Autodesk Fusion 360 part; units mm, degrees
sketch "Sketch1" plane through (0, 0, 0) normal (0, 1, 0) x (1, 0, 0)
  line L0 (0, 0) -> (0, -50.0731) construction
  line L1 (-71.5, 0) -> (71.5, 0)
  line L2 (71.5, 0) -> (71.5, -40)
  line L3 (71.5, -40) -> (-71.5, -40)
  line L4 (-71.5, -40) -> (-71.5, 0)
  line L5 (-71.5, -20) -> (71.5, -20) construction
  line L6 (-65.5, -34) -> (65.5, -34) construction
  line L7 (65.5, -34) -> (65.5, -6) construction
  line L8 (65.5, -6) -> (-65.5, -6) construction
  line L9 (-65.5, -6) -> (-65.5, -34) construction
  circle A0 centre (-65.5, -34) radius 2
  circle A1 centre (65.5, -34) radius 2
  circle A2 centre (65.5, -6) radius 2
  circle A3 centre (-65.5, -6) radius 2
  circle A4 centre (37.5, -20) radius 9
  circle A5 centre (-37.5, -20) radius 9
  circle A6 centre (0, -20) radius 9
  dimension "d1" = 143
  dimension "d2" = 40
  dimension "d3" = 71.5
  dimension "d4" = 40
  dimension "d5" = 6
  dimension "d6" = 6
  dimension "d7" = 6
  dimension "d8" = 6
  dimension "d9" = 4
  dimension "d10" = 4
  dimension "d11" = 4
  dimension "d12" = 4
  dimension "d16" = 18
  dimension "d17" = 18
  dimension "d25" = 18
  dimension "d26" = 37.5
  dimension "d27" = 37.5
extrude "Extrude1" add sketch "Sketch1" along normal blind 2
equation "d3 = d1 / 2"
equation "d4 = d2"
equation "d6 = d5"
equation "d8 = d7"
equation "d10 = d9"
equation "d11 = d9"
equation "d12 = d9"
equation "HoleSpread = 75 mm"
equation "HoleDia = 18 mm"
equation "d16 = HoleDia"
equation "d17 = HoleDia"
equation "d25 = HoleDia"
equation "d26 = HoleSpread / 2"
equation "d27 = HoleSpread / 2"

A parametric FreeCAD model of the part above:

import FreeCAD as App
import Part
import Sketcher
Q = App.Units.Quantity

doc = App.newDocument("Part")
body = doc.addObject("PartDesign::Body", "Body")

# Sketch on XZ plane
sketch1 = doc.addObject("Sketcher::SketchObject", "Sketch")
body.addObject(sketch1)
sketch1.AttachmentSupport = (doc.XZ_Plane, [""])
sketch1.MapMode = "FlatFace"
sketch1.addGeometry(Part.LineSegment(App.Vector(71.5, 0, 0), App.Vector(-71.5, 0, 0)), False)
sketch1.addGeometry(Part.LineSegment(App.Vector(-71.5, 0, 0), App.Vector(-71.5, 40, 0)), False)
sketch1.addGeometry(Part.LineSegment(App.Vector(-71.5, 40, 0), App.Vector(71.5, 40, 0)), False)
sketch1.addGeometry(Part.LineSegment(App.Vector(71.5, 40, 0), App.Vector(71.5, 0, 0)), False)
sketch1.addGeometry(Part.Circle(App.Vector(-65.5, 34, 0), App.Vector(0, 0, 1), 2), False)
sketch1.addGeometry(Part.Circle(App.Vector(65.5, 34, 0), App.Vector(0, 0, 1), 2), False)
sketch1.addGeometry(Part.Circle(App.Vector(-37.5, 20, 0), App.Vector(0, 0, 1), 9), False)
sketch1.addGeometry(Part.Circle(App.Vector(-65.5, 6, 0), App.Vector(0, 0, 1), 2), False)
sketch1.addGeometry(Part.Circle(App.Vector(0, 20, 0), App.Vector(0, 0, 1), 9), False)
sketch1.addGeometry(Part.Circle(App.Vector(37.5, 20, 0), App.Vector(0, 0, 1), 9), False)
sketch1.addGeometry(Part.Circle(App.Vector(65.5, 6, 0), App.Vector(0, 0, 1), 2), False)
sketch1.addConstraint(Sketcher.Constraint("Coincident", 0, 2, 1, 1))
sketch1.addConstraint(Sketcher.Constraint("Coincident", 1, 2, 2, 1))
sketch1.addConstraint(Sketcher.Constraint("Coincident", 2, 2, 3, 1))
sketch1.addConstraint(Sketcher.Constraint("Coincident", 3, 2, 0, 1))
sketch1.addConstraint(Sketcher.Constraint("Horizontal", 0))
sketch1.addConstraint(Sketcher.Constraint("Vertical", 1))
sketch1.addConstraint(Sketcher.Constraint("Horizontal", 2))
sketch1.addConstraint(Sketcher.Constraint("Vertical", 3))
sketch1.addConstraint(Sketcher.Constraint("Equal", 4, 5))
sketch1.addConstraint(Sketcher.Constraint("Equal", 5, 7))
sketch1.addConstraint(Sketcher.Constraint("Equal", 6, 8))
sketch1.addConstraint(Sketcher.Constraint("Equal", 8, 9))
sketch1.addConstraint(Sketcher.Constraint("Equal", 7, 10))
sketch1.addConstraint(Sketcher.Constraint("Symmetric", 0, 2, 3, 2, -1, 1))
sketch1.addConstraint(Sketcher.Constraint("Symmetric", 4, 3, 5, 3, -2))
sketch1.addConstraint(Sketcher.Constraint("Symmetric", 6, 3, 9, 3, -2))
sketch1.addConstraint(Sketcher.Constraint("Symmetric", 7, 3, 10, 3, -2))
sketch1.addConstraint(Sketcher.Constraint("PointOnObject", 8, 3, -2))
sketch1.addConstraint(Sketcher.Constraint("Horizontal", 6, 3, 8, 3))
sketch1.addConstraint(Sketcher.Constraint("Vertical", 4, 3, 7, 3))
sketch1.addConstraint(Sketcher.Constraint("Diameter", 4, Q("4 mm")))
sketch1.addConstraint(Sketcher.Constraint("Diameter", 6, Q("18 mm")))
sketch1.addConstraint(Sketcher.Constraint("DistanceX", 0, 2, 0, 1, Q("143 mm")))
sketch1.addConstraint(Sketcher.Constraint("DistanceY", 1, 1, 1, 2, Q("40 mm")))
sketch1.addConstraint(Sketcher.Constraint("DistanceY", -1, 1, 7, 3, Q("6 mm")))
sketch1.addConstraint(Sketcher.Constraint("DistanceX", 0, 2, 7, 3, Q("6 mm")))
sketch1.addConstraint(Sketcher.Constraint("DistanceY", 4, 3, 1, 2, Q("6 mm")))
sketch1.addConstraint(Sketcher.Constraint("DistanceX", 6, 3, -1, 1, Q("37.5 mm")))
sketch1.addConstraint(Sketcher.Constraint("DistanceY", -1, 1, 6, 3, Q("20 mm")))
pad1 = doc.addObject("PartDesign::Pad", "Pad")
body.addObject(pad1)
pad1.Profile = sketch1
pad1.Length = 2
pad1.Reversed = True

doc.recompute()
